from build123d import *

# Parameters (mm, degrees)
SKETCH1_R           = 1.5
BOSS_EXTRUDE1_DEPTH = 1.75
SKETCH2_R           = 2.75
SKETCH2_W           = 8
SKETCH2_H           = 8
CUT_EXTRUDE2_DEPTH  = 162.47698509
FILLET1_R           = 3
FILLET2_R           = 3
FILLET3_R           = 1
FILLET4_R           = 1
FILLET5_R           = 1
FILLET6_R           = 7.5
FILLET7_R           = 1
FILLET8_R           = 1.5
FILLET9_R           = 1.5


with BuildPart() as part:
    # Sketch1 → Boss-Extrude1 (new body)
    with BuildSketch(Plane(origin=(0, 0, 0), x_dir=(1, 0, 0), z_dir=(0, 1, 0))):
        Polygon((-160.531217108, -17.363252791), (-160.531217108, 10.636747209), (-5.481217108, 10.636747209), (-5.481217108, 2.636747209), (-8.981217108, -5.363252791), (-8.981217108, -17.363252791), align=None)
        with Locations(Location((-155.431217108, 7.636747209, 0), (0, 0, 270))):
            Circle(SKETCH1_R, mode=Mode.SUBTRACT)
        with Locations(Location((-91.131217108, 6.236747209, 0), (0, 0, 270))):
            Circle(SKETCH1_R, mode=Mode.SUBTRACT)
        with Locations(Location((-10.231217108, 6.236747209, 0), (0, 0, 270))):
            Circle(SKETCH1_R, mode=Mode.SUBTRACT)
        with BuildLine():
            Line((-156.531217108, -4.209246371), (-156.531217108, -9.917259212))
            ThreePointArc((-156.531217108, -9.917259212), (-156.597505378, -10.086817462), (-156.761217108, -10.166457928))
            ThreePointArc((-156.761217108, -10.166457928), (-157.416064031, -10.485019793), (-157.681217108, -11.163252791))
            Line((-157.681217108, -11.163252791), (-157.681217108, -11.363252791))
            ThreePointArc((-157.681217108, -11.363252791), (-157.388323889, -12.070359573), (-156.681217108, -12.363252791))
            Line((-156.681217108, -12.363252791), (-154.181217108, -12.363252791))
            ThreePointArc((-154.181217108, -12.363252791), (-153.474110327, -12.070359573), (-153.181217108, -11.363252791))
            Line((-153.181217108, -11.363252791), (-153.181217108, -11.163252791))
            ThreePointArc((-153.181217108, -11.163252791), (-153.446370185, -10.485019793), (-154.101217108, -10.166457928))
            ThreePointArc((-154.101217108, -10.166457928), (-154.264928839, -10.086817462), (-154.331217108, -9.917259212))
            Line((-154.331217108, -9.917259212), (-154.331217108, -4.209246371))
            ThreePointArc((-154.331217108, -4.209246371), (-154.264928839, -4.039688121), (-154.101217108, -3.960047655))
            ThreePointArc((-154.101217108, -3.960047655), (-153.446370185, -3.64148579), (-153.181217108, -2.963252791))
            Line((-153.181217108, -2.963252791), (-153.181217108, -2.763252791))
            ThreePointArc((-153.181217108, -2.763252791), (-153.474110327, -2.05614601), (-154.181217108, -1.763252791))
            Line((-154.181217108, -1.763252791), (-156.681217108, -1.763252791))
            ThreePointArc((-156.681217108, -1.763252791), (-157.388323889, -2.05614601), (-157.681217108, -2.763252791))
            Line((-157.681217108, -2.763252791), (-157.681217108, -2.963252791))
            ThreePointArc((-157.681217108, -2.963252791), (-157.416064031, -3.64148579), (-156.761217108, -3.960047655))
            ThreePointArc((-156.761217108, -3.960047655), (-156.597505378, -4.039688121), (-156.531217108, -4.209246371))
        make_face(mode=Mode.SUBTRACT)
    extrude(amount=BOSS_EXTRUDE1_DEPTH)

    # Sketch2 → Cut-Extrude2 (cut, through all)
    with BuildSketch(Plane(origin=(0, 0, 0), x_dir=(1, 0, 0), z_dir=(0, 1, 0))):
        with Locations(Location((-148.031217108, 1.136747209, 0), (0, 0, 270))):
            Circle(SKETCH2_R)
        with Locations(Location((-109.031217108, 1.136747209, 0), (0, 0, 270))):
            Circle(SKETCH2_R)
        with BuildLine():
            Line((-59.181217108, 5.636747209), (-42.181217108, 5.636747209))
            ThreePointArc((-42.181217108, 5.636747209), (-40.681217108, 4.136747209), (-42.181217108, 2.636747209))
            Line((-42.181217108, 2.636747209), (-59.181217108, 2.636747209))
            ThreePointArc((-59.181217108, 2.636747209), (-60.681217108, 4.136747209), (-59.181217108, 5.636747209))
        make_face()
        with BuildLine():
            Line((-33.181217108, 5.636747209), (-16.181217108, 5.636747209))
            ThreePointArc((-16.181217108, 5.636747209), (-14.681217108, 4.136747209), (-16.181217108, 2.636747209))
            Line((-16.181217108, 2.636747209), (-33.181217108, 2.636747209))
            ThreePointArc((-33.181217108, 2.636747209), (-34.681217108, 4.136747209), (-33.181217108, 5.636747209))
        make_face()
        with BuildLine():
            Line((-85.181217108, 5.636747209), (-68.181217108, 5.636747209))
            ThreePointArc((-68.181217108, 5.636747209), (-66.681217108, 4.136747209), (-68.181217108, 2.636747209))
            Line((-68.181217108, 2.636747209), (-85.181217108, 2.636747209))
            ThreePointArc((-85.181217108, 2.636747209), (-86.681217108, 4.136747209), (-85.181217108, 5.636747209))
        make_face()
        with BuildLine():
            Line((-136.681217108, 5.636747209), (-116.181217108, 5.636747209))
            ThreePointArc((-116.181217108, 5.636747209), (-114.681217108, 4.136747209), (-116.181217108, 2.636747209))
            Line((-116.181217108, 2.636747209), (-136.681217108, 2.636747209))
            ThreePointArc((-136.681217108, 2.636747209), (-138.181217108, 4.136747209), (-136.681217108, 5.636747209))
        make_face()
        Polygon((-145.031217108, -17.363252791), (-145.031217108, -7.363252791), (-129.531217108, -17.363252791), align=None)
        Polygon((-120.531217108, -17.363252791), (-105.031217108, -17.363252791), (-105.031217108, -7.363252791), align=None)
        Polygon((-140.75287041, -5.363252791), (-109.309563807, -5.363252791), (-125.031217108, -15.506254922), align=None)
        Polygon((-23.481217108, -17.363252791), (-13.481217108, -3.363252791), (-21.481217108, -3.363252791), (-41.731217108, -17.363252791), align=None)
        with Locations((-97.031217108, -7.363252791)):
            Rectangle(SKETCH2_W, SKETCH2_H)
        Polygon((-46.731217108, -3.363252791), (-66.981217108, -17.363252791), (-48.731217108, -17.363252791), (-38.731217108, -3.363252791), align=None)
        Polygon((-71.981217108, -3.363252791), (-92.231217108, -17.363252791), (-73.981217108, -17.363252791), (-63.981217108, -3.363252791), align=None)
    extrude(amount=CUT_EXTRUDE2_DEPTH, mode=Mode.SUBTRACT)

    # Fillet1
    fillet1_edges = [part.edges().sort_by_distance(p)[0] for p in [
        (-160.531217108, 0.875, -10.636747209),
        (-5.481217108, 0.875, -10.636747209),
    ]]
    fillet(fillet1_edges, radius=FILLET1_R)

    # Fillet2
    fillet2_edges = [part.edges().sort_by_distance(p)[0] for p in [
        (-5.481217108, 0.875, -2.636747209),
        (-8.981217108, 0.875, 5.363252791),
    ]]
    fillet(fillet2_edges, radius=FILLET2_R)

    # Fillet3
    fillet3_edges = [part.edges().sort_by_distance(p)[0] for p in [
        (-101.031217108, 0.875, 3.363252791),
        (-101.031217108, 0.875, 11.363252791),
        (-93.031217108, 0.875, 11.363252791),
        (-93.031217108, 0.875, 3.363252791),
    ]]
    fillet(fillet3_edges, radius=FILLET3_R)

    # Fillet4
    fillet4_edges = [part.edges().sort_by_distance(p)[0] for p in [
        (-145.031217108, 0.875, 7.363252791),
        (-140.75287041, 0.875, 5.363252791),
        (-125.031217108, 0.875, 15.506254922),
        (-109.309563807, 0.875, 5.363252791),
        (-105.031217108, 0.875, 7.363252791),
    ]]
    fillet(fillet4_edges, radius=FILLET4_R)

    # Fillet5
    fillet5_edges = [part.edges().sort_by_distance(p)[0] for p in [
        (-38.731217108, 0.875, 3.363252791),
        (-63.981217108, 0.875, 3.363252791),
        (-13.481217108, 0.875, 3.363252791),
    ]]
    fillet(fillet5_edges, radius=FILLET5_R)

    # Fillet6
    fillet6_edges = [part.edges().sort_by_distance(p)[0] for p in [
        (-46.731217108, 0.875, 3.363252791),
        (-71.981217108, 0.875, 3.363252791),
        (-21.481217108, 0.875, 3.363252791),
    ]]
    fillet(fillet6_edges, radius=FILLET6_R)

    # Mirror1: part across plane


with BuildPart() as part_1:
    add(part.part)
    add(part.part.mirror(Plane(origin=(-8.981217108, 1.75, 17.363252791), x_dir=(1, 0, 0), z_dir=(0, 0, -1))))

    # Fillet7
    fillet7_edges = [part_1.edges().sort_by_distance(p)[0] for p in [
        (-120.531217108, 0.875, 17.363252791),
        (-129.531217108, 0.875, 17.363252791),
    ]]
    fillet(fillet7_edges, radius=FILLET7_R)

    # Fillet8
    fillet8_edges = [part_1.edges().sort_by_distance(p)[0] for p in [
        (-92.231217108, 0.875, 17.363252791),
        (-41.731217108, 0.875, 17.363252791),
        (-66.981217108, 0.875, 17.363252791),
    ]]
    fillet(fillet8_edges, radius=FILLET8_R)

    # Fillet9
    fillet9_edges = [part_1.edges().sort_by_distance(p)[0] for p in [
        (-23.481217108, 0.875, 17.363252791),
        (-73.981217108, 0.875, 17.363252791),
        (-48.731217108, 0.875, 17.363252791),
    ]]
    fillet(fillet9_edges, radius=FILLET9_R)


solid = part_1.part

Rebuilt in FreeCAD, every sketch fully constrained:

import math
import FreeCAD as App
import Part
import Sketcher
from FreeCAD import Vector


def edges_at(feature, points):
    """Names of the edges that pass closest to the given points."""
    edges = feature.Shape.Edges
    near = lambda p: min(range(len(edges)), key=lambda i: edges[i].distToShape(Part.Vertex(*p))[0])
    return sorted({f"Edge{near(p) + 1}" for p in points})

doc = App.newDocument("Part")
body = doc.addObject("PartDesign::Body", "Body")

sketch1 = body.newObject("Sketcher::SketchObject", "Sketch")
sketch1.AttachmentSupport = (doc.getObject("XZ_Plane"), [""])
sketch1.MapMode = "FlatFace"
sketch1.addGeometry([
    Part.LineSegment(Vector(-160.53, -10.64, 0), Vector(-160.53, 17.36, 0)),
    Part.LineSegment(Vector(-160.53, 17.36, 0), Vector(-8.98, 17.36, 0)),
    Part.LineSegment(Vector(-8.98, 17.36, 0), Vector(-8.98, 5.36, 0)),
    Part.LineSegment(Vector(-8.98, 5.36, 0), Vector(-5.48, -2.64, 0)),
    Part.LineSegment(Vector(-5.48, -2.64, 0), Vector(-5.48, -10.64, 0)),
    Part.LineSegment(Vector(-5.48, -10.64, 0), Vector(-160.53, -10.64, 0)),
    Part.ArcOfCircle(Part.Circle(Vector(-156.78, 4.21, 0), Vector(0, 0, 1), 0.25), math.radians(-85), math.radians(0)),
    Part.ArcOfCircle(Part.Circle(Vector(-156.68, 2.96, 0), Vector(0, 0, 1), 1), math.radians(95), math.radians(180)),
    Part.LineSegment(Vector(-157.68, 2.96, 0), Vector(-157.68, 2.76, 0)),
    Part.ArcOfCircle(Part.Circle(Vector(-156.68, 2.76, 0), Vector(0, 0, 1), 1), math.radians(-180), math.radians(-90)),
    Part.LineSegment(Vector(-156.68, 1.76, 0), Vector(-154.18, 1.76, 0)),
    Part.ArcOfCircle(Part.Circle(Vector(-154.18, 2.76, 0), Vector(0, 0, 1), 1), math.radians(-90), math.radians(0)),
    Part.LineSegment(Vector(-153.18, 2.76, 0), Vector(-153.18, 2.96, 0)),
    Part.ArcOfCircle(Part.Circle(Vector(-154.18, 2.96, 0), Vector(0, 0, 1), 1), math.radians(0), math.radians(85)),
    Part.ArcOfCircle(Part.Circle(Vector(-154.08, 4.21, 0), Vector(0, 0, 1), 0.25), math.radians(180), math.radians(265)),
    Part.LineSegment(Vector(-154.33, 4.21, 0), Vector(-154.33, 9.92, 0)),
    Part.ArcOfCircle(Part.Circle(Vector(-154.08, 9.92, 0), Vector(0, 0, 1), 0.25), math.radians(95), math.radians(180)),
    Part.ArcOfCircle(Part.Circle(Vector(-154.18, 11.16, 0), Vector(0, 0, 1), 1), math.radians(-85), math.radians(0)),
    Part.LineSegment(Vector(-153.18, 11.16, 0), Vector(-153.18, 11.36, 0)),
    Part.ArcOfCircle(Part.Circle(Vector(-154.18, 11.36, 0), Vector(0, 0, 1), 1), math.radians(0), math.radians(90)),
    Part.LineSegment(Vector(-154.18, 12.36, 0), Vector(-156.68, 12.36, 0)),
    Part.ArcOfCircle(Part.Circle(Vector(-156.68, 11.36, 0), Vector(0, 0, 1), 1), math.radians(90), math.radians(180)),
    Part.LineSegment(Vector(-157.68, 11.36, 0), Vector(-157.68, 11.16, 0)),
    Part.ArcOfCircle(Part.Circle(Vector(-156.68, 11.16, 0), Vector(0, 0, 1), 1), math.radians(180), math.radians(265)),
    Part.ArcOfCircle(Part.Circle(Vector(-156.78, 9.92, 0), Vector(0, 0, 1), 0.25), math.radians(0), math.radians(85)),
    Part.LineSegment(Vector(-156.53, 9.92, 0), Vector(-156.53, 4.21, 0)),
    Part.Circle(Vector(-10.23, -6.24, 0), Vector(0, 0, 1), 1.5),
    Part.Circle(Vector(-91.13, -6.24, 0), Vector(0, 0, 1), 1.5),
    Part.Circle(Vector(-155.43, -7.64, 0), Vector(0, 0, 1), 1.5),
], False)
sketch1.addConstraint([
    Sketcher.Constraint("Coincident", 0, 2, 1, 1),
    Sketcher.Constraint("Coincident", 1, 2, 2, 1),
    Sketcher.Constraint("Coincident", 2, 2, 3, 1),
    Sketcher.Constraint("Coincident", 3, 2, 4, 1),
    Sketcher.Constraint("Coincident", 4, 2, 5, 1),
    Sketcher.Constraint("Coincident", 5, 2, 0, 1),
    Sketcher.Constraint("Tangent", 6, 1, 7, 1),
    Sketcher.Constraint("Tangent", 7, 2, 8, 1),
    Sketcher.Constraint("Tangent", 8, 2, 9, 1),
    Sketcher.Constraint("Tangent", 9, 2, 10, 1),
    Sketcher.Constraint("Tangent", 10, 2, 11, 1),
    Sketcher.Constraint("Tangent", 11, 2, 12, 1),
    Sketcher.Constraint("Tangent", 12, 2, 13, 1),
    Sketcher.Constraint("Tangent", 13, 2, 14, 2),
    Sketcher.Constraint("Tangent", 14, 1, 15, 1),
    Sketcher.Constraint("Tangent", 15, 2, 16, 2),
    Sketcher.Constraint("Tangent", 16, 1, 17, 1),
    Sketcher.Constraint("Tangent", 17, 2, 18, 1),
    Sketcher.Constraint("Tangent", 18, 2, 19, 1),
    Sketcher.Constraint("Tangent", 19, 2, 20, 1),
    Sketcher.Constraint("Tangent", 20, 2, 21, 1),
    Sketcher.Constraint("Tangent", 21, 2, 22, 1),
    Sketcher.Constraint("Tangent", 22, 2, 23, 1),
    Sketcher.Constraint("Tangent", 23, 2, 24, 2),
    Sketcher.Constraint("Tangent", 24, 1, 25, 1),
    Sketcher.Constraint("Tangent", 25, 2, 6, 2),
    Sketcher.Constraint("Vertical", 0),
    Sketcher.Constraint("Horizontal", 1),
    Sketcher.Constraint("Vertical", 2),
    Sketcher.Constraint("Vertical", 4),
    Sketcher.Constraint("Horizontal", 5),
    Sketcher.Constraint("Vertical", 8),
    Sketcher.Constraint("Horizontal", 10),
    Sketcher.Constraint("Vertical", 12),
    Sketcher.Constraint("Vertical", 15),
    Sketcher.Constraint("Vertical", 18),
    Sketcher.Constraint("Horizontal", 20),
    Sketcher.Constraint("Vertical", 22),
    Sketcher.Constraint("Vertical", 25),
    Sketcher.Constraint("Equal", 7, 9),
    Sketcher.Constraint("Equal", 9, 11),
    Sketcher.Constraint("Equal", 11, 13),
    Sketcher.Constraint("Equal", 6, 14),
    Sketcher.Constraint("Equal", 14, 16),
    Sketcher.Constraint("Equal", 13, 17),
    Sketcher.Constraint("Equal", 17, 19),
    Sketcher.Constraint("Equal", 19, 21),
    Sketcher.Constraint("Equal", 21, 23),
    Sketcher.Constraint("Equal", 16, 24),
    Sketcher.Constraint("Equal", 26, 27),
    Sketcher.Constraint("Equal", 27, 28),
    Sketcher.Constraint("Horizontal", 7, 3, 13, 3),
    Sketcher.Constraint("Horizontal", 6, 3, 14, 3),
    Sketcher.Constraint("Horizontal", 17, 3, 23, 3),
    Sketcher.Constraint("Horizontal", 16, 3, 24, 3),
    Sketcher.Constraint("Horizontal", 26, 3, 27, 3),
    Sketcher.Constraint("Vertical", 13, 3, 17, 3),
    Sketcher.Constraint("Equal", 12, 18),
    Sketcher.Constraint("Diameter", 26, 3.0),
    Sketcher.Constraint("Radius", 7, 1.0),
    Sketcher.Constraint("DistanceY", 0, 1, 0, 2, 28.0),
    Sketcher.Constraint("DistanceY", 2, 2, 2, 1, 12.0),
    Sketcher.Constraint("DistanceY", 4, 2, 4, 1, 8.0),
    Sketcher.Constraint("Radius", 6, 0.25),
    Sketcher.Constraint("DistanceX", 10, 1, 10, 2, 2.5),
    Sketcher.Constraint("DistanceY", 8, 2, 8, 1, 0.2),
    Sketcher.Constraint("DistanceY", 26, 3, 11, 3, 9.0),
    Sketcher.Constraint("DistanceY", 21, 3, 0, 2, 6.0),
    Sketcher.Constraint("DistanceY", 5, 2, 28, 3, 3.0),
    Sketcher.Constraint("DistanceX", 1, 1, 1, 2, 151.55),
    Sketcher.Constraint("DistanceX", 5, 2, 5, 1, 155.05),
    Sketcher.Constraint("DistanceX", 6, 3, 7, 3, 0.1),
    Sketcher.Constraint("DistanceY", 13, 3, 17, 3, 8.2),
    Sketcher.Constraint("DistanceX", 16, 3, 1, 2, 145.1),
    Sketcher.Constraint("DistanceX", 5, 2, 28, 3, 5.1),
    Sketcher.Constraint("DistanceX", 14, 3, 26, 3, 143.85),
    Sketcher.Constraint("DistanceX", 11, 3, 27, 3, 63.05),
    Sketcher.Constraint("DistanceY", -1, 1, 16, 3, 9.917259),
    Sketcher.Constraint("DistanceX", 6, 3, -1, 1, 156.781217),
])
pad1 = body.newObject("PartDesign::Pad", "Pad")
pad1.Profile = sketch1
pad1.Length = 1.75
pad1.Reversed = True

sketch2 = body.newObject("Sketcher::SketchObject", "Sketch001")
sketch2.AttachmentSupport = (doc.getObject("XZ_Plane"), [""])
sketch2.MapMode = "FlatFace"
sketch2.addGeometry([
    Part.Circle(Vector(-148, -1.1, 0), Vector(0, 0, 1), 2.8),
    Part.Circle(Vector(-109, -1.1, 0), Vector(0, 0, 1), 2.8),
    Part.LineSegment(Vector(-42.2, -5.6, 0), Vector(-59.2, -5.6, 0)),
    Part.ArcOfCircle(Part.Circle(Vector(-59.2, -4.1, 0), Vector(0, 0, 1), 1.5), math.radians(90), math.radians(270)),
    Part.LineSegment(Vector(-59.2, -2.6, 0), Vector(-42.2, -2.6, 0)),
    Part.ArcOfCircle(Part.Circle(Vector(-42.2, -4.1, 0), Vector(0, 0, 1), 1.5), math.radians(-90), math.radians(90)),
    Part.LineSegment(Vector(-16.2, -5.6, 0), Vector(-33.2, -5.6, 0)),
    Part.ArcOfCircle(Part.Circle(Vector(-33.2, -4.1, 0), Vector(0, 0, 1), 1.5), math.radians(90), math.radians(270)),
    Part.LineSegment(Vector(-33.2, -2.6, 0), Vector(-16.2, -2.6, 0)),
    Part.ArcOfCircle(Part.Circle(Vector(-16.2, -4.1, 0), Vector(0, 0, 1), 1.5), math.radians(-90), math.radians(90)),
    Part.LineSegment(Vector(-68.2, -5.6, 0), Vector(-85.2, -5.6, 0)),
    Part.ArcOfCircle(Part.Circle(Vector(-85.2, -4.1, 0), Vector(0, 0, 1), 1.5), math.radians(90), math.radians(270)),
    Part.LineSegment(Vector(-85.2, -2.6, 0), Vector(-68.2, -2.6, 0)),
    Part.ArcOfCircle(Part.Circle(Vector(-68.2, -4.1, 0), Vector(0, 0, 1), 1.5), math.radians(-90), math.radians(90)),
    Part.LineSegment(Vector(-116.2, -5.6, 0), Vector(-136.7, -5.6, 0)),
    Part.ArcOfCircle(Part.Circle(Vector(-136.7, -4.1, 0), Vector(0, 0, 1), 1.5), math.radians(90), math.radians(270)),
    Part.LineSegment(Vector(-136.7, -2.6, 0), Vector(-116.2, -2.6, 0)),
    Part.ArcOfCircle(Part.Circle(Vector(-116.2, -4.1, 0), Vector(0, 0, 1), 1.5), math.radians(-90), math.radians(90)),
    Part.LineSegment(Vector(-145, 7.4, 0), Vector(-145, 17.4, 0)),
    Part.LineSegment(Vector(-145, 17.4, 0), Vector(-129.5, 17.4, 0)),
    Part.LineSegment(Vector(-129.5, 17.4, 0), Vector(-145, 7.4, 0)),
    Part.LineSegment(Vector(-120.5, 17.4, 0), Vector(-105, 17.4, 0)),
    Part.LineSegment(Vector(-105, 17.4, 0), Vector(-105, 7.4, 0)),
    Part.LineSegment(Vector(-105, 7.4, 0), Vector(-120.5, 17.4, 0)),
    Part.LineSegment(Vector(-109.3, 5.4, 0), Vector(-140.8, 5.4, 0)),
    Part.LineSegment(Vector(-140.8, 5.4, 0), Vector(-125, 15.5, 0)),
    Part.LineSegment(Vector(-125, 15.5, 0), Vector(-109.3, 5.4, 0)),
    Part.LineSegment(Vector(-23.5, 17.4, 0), Vector(-13.5, 3.4, 0)),
    Part.LineSegment(Vector(-13.5, 3.4, 0), Vector(-21.5, 3.4, 0)),
    Part.LineSegment(Vector(-21.5, 3.4, 0), Vector(-41.7, 17.4, 0)),
    Part.LineSegment(Vector(-41.7, 17.4, 0), Vector(-23.5, 17.4, 0)),
    Part.LineSegment(Vector(-101, 3.4, 0), Vector(-101, 11.4, 0)),
    Part.LineSegment(Vector(-101, 11.4, 0), Vector(-93, 11.4, 0)),
    Part.LineSegment(Vector(-93, 11.4, 0), Vector(-93, 3.4, 0)),
    Part.LineSegment(Vector(-93, 3.4, 0), Vector(-101, 3.4, 0)),
    Part.LineSegment(Vector(-46.7, 3.4, 0), Vector(-67, 17.4, 0)),
    Part.LineSegment(Vector(-67, 17.4, 0), Vector(-48.7, 17.4, 0)),
    Part.LineSegment(Vector(-48.7, 17.4, 0), Vector(-38.7, 3.4, 0)),
    Part.LineSegment(Vector(-38.7, 3.4, 0), Vector(-46.7, 3.4, 0)),
    Part.LineSegment(Vector(-72, 3.4, 0), Vector(-92.2, 17.4, 0)),
    Part.LineSegment(Vector(-92.2, 17.4, 0), Vector(-74, 17.4, 0)),
    Part.LineSegment(Vector(-74, 17.4, 0), Vector(-64, 3.4, 0)),
    Part.LineSegment(Vector(-64, 3.4, 0), Vector(-72, 3.4, 0)),
], False)
sketch2.addConstraint([
    Sketcher.Constraint("Tangent", 2, 2, 3, 2),
    Sketcher.Constraint("Tangent", 3, 1, 4, 1),
    Sketcher.Constraint("Tangent", 4, 2, 5, 2),
    Sketcher.Constraint("Tangent", 5, 1, 2, 1),
    Sketcher.Constraint("Tangent", 6, 2, 7, 2),
    Sketcher.Constraint("Tangent", 7, 1, 8, 1),
    Sketcher.Constraint("Tangent", 8, 2, 9, 2),
    Sketcher.Constraint("Tangent", 9, 1, 6, 1),
    Sketcher.Constraint("Tangent", 10, 2, 11, 2),
    Sketcher.Constraint("Tangent", 11, 1, 12, 1),
    Sketcher.Constraint("Tangent", 12, 2, 13, 2),
    Sketcher.Constraint("Tangent", 13, 1, 10, 1),
    Sketcher.Constraint("Tangent", 14, 2, 15, 2),
    Sketcher.Constraint("Tangent", 15, 1, 16, 1),
    Sketcher.Constraint("Tangent", 16, 2, 17, 2),
    Sketcher.Constraint("Tangent", 17, 1, 14, 1),
    Sketcher.Constraint("Coincident", 18, 2, 19, 1),
    Sketcher.Constraint("Coincident", 19, 2, 20, 1),
    Sketcher.Constraint("Coincident", 20, 2, 18, 1),
    Sketcher.Constraint("Coincident", 21, 2, 22, 1),
    Sketcher.Constraint("Coincident", 22, 2, 23, 1),
    Sketcher.Constraint("Coincident", 23, 2, 21, 1),
    Sketcher.Constraint("Coincident", 24, 2, 25, 1),
    Sketcher.Constraint("Coincident", 25, 2, 26, 1),
    Sketcher.Constraint("Coincident", 26, 2, 24, 1),
    Sketcher.Constraint("Coincident", 27, 2, 28, 1),
    Sketcher.Constraint("Coincident", 28, 2, 29, 1),
    Sketcher.Constraint("Coincident", 29, 2, 30, 1),
    Sketcher.Constraint("Coincident", 30, 2, 27, 1),
    Sketcher.Constraint("Coincident", 31, 2, 32, 1),
    Sketcher.Constraint("Coincident", 32, 2, 33, 1),
    Sketcher.Constraint("Coincident", 33, 2, 34, 1),
    Sketcher.Constraint("Coincident", 34, 2, 31, 1),
    Sketcher.Constraint("Coincident", 35, 2, 36, 1),
    Sketcher.Constraint("Coincident", 36, 2, 37, 1),
    Sketcher.Constraint("Coincident", 37, 2, 38, 1),
    Sketcher.Constraint("Coincident", 38, 2, 35, 1),
    Sketcher.Constraint("Coincident", 39, 2, 40, 1),
    Sketcher.Constraint("Coincident", 40, 2, 41, 1),
    Sketcher.Constraint("Coincident", 41, 2, 42, 1),
    Sketcher.Constraint("Coincident", 42, 2, 39, 1),
    Sketcher.Constraint("Horizontal", 2),
    Sketcher.Constraint("Horizontal", 4),
    Sketcher.Constraint("Horizontal", 6),
    Sketcher.Constraint("Horizontal", 8),
    Sketcher.Constraint("Horizontal", 10),
    Sketcher.Constraint("Horizontal", 12),
    Sketcher.Constraint("Horizontal", 14),
    Sketcher.Constraint("Horizontal", 16),
    Sketcher.Constraint("Vertical", 18),
    Sketcher.Constraint("Horizontal", 19),
    Sketcher.Constraint("Horizontal", 21),
    Sketcher.Constraint("Vertical", 22),
    Sketcher.Constraint("Horizontal", 24),
    Sketcher.Constraint("Horizontal", 28),
    Sketcher.Constraint("Horizontal", 30),
    Sketcher.Constraint("Vertical", 31),
    Sketcher.Constraint("Horizontal", 32),
    Sketcher.Constraint("Vertical", 33),
    Sketcher.Constraint("Horizontal", 34),
    Sketcher.Constraint("Horizontal", 36),
    Sketcher.Constraint("Horizontal", 38),
    Sketcher.Constraint("Horizontal", 40),
    Sketcher.Constraint("Horizontal", 42),
    Sketcher.Constraint("Equal", 0, 1),
    Sketcher.Constraint("Equal", 5, 7),
    Sketcher.Constraint("Equal", 9, 11),
    Sketcher.Constraint("Equal", 13, 15),
    Sketcher.Constraint("Parallel", 20, 25),
    Sketcher.Constraint("Parallel", 23, 26),
    Sketcher.Constraint("Parallel", 29, 35),
    Sketcher.Constraint("Parallel", 27, 37),
    Sketcher.Constraint("Parallel", 35, 39),
    Sketcher.Constraint("Parallel", 37, 41),
    Sketcher.Constraint("Horizontal", 0, 3, 1, 3),
    Sketcher.Constraint("Horizontal", 5, 3, 7, 3),
    Sketcher.Constraint("Horizontal", 9, 3, 11, 3),
    Sketcher.Constraint("Horizontal", 13, 3, 15, 3),
    Sketcher.Constraint("Horizontal", 19, 2, 21, 2),
    Sketcher.Constraint("Horizontal", 20, 2, 22, 2),
    Sketcher.Constraint("Horizontal", 23, 2, 29, 2),
    Sketcher.Constraint("Horizontal", 28, 2, 33, 2),
    Sketcher.Constraint("Horizontal", 30, 2, 35, 2),
    Sketcher.Constraint("Horizontal", 34, 2, 37, 2),
    Sketcher.Constraint("Horizontal", 36, 2, 39, 2),
    Sketcher.Constraint("Horizontal", 38, 2, 41, 2),
    Sketcher.Constraint("Equal", 4, 6),
    Sketcher.Constraint("Equal", 8, 10),
    Sketcher.Constraint("Equal", 19, 21),
    Sketcher.Constraint("Equal", 28, 32),
    Sketcher.Constraint("Equal", 30, 36),
    Sketcher.Constraint("Equal", 36, 40),
    Sketcher.Constraint("Equal", 42, 31),
    Sketcher.Constraint("Diameter", 0, 5.5),
    Sketcher.Constraint("Radius", 3, 1.5),
    Sketcher.Constraint("DistanceX", 2, 2, 2, 1, 17.0),
    Sketcher.Constraint("DistanceX", 28, 2, 28, 1, 8.0),
    Sketcher.Constraint("DistanceY", 18, 1, 18, 2, 10.0),
    Sketcher.Constraint("DistanceX", 14, 2, 14, 1, 20.5),
    Sketcher.Constraint("DistanceX", 19, 1, 19, 2, 15.5),
    Sketcher.Constraint("DistanceX", 0, 3, 1, 3, 39.0),
    Sketcher.Constraint("DistanceY", 3, 3, 1, 3, 3.0),
    Sketcher.Constraint("DistanceX", 5, 3, 7, 3, 9.0),
    Sketcher.Constraint("DistanceX", 11, 3, 3, 3, 26.0),
    Sketcher.Constraint("DistanceX", 17, 3, 11, 3, 31.0),
    Sketcher.Constraint("DistanceX", 0, 3, 18, 2, 3.0),
    Sketcher.Constraint("DistanceY", 15, 1, 18, 2, 20.0),
    Sketcher.Constraint("DistanceX", 1, 3, 21, 2, 4.0),
    Sketcher.Constraint("DistanceY", 24, 2, 20, 2, 2.0),
    Sketcher.Constraint("DistanceX", 18, 2, 25, 2, 20.0),
    Sketcher.Constraint("DistanceY", 8, 2, 27, 2, 6.0),
    Sketcher.Constraint("DistanceX", 30, 2, 28, 2, 2.0),
    Sketcher.Constraint("DistanceX", 22, 2, 31, 2, 4.0),
    Sketcher.Constraint("DistanceX", 36, 2, 29, 2, 7.0),
    Sketcher.Constraint("DistanceX", 40, 2, 35, 2, 7.0),
    Sketcher.Constraint("DistanceX", 30, 1, 30, 2, 18.25),
    Sketcher.Constraint("DistanceX", 8, 2, 27, 2, 2.7),
    Sketcher.Constraint("DistanceX", 32, 2, 39, 2, 0.8),
    Sketcher.Constraint("DistanceX", 24, 2, 24, 1, 31.443307),
    Sketcher.Constraint("DistanceX", 24, 2, -1, 1, 140.75287),
    Sketcher.Constraint("DistanceY", 0, 3, -1, 1, 1.136747),
])
pocket1 = body.newObject("PartDesign::Pocket", "Pocket")
pocket1.Profile = sketch2
pocket1.Type = "ThroughAll"
doc.recompute()

fillet = body.newObject("PartDesign::Fillet", "Fillet")
fillet.Base = (pocket1, edges_at(pocket1, [(-160.531, 0.875, -10.637), (-5.481, 0.875, -10.637)]))
fillet.Radius = 3
doc.recompute()

fillet2 = body.newObject("PartDesign::Fillet", "Fillet001")
fillet2.Base = (fillet, edges_at(fillet, [(-5.481, 0.875, -2.637), (-8.981, 0.875, 5.363)]))
fillet2.Radius = 3
doc.recompute()

fillet3 = body.newObject("PartDesign::Fillet", "Fillet002")
fillet3.Base = (fillet2, edges_at(fillet2, [
    (-101.031, 0.875, 3.363),
    (-101.031, 0.875, 11.363),
    (-93.031, 0.875, 11.363),
    (-93.031, 0.875, 3.363),
]))
fillet3.Radius = 1
doc.recompute()

fillet4 = body.newObject("PartDesign::Fillet", "Fillet003")
fillet4.Base = (fillet3, edges_at(fillet3, [
    (-145.031, 0.875, 7.363),
    (-140.753, 0.875, 5.363),
    (-125.031, 0.875, 15.506),
    (-109.31, 0.875, 5.363),
    (-105.031, 0.875, 7.363),
]))
fillet4.Radius = 1
doc.recompute()

fillet5 = body.newObject("PartDesign::Fillet", "Fillet004")
fillet5.Base = (fillet4, edges_at(fillet4, [(-38.731, 0.875, 3.363), (-63.981, 0.875, 3.363), (-13.481, 0.875, 3.363)]))
fillet5.Radius = 1
doc.recompute()

fillet6 = body.newObject("PartDesign::Fillet", "Fillet005")
fillet6.Base = (fillet5, edges_at(fillet5, [(-46.731, 0.875, 3.363), (-71.981, 0.875, 3.363), (-21.481, 0.875, 3.363)]))
fillet6.Radius = 7.5
body2 = doc.addObject("PartDesign::Body", "Body001")
doc.recompute()

body2.BaseFeature = body
doc.recompute()

mirroring = doc.addObject("Part::Mirroring", "Mirroring")
mirroring.Source = body
mirroring.Base = Vector(-8.981217, 1.75, 17.363253)
mirroring.Normal = Vector(0, 0, -1)
body3 = doc.addObject("PartDesign::Body", "Body002")
body3.BaseFeature = mirroring
boolean = body2.newObject("PartDesign::Boolean", "Boolean")
boolean.Type = "Fuse"
boolean.addObjects([body3])
doc.recompute()

fillet7 = body2.newObject("PartDesign::Fillet", "Fillet006")
fillet7.Base = (boolean, edges_at(boolean, [(-120.531, 0.875, 17.363), (-129.531, 0.875, 17.363)]))
fillet7.Radius = 1
doc.recompute()

fillet8 = body2.newObject("PartDesign::Fillet", "Fillet007")
fillet8.Base = (fillet7, edges_at(fillet7, [(-92.231, 0.875, 17.363), (-41.731, 0.875, 17.363), (-66.981, 0.875, 17.363)]))
fillet8.Radius = 1.5
doc.recompute()

fillet9 = body2.newObject("PartDesign::Fillet", "Fillet008")
fillet9.Base = (fillet8, edges_at(fillet8, [(-23.481, 0.875, 17.363), (-73.981, 0.875, 17.363), (-48.731, 0.875, 17.363)]))
fillet9.Radius = 1.5
mirroring.Visibility = False

doc.recompute()
